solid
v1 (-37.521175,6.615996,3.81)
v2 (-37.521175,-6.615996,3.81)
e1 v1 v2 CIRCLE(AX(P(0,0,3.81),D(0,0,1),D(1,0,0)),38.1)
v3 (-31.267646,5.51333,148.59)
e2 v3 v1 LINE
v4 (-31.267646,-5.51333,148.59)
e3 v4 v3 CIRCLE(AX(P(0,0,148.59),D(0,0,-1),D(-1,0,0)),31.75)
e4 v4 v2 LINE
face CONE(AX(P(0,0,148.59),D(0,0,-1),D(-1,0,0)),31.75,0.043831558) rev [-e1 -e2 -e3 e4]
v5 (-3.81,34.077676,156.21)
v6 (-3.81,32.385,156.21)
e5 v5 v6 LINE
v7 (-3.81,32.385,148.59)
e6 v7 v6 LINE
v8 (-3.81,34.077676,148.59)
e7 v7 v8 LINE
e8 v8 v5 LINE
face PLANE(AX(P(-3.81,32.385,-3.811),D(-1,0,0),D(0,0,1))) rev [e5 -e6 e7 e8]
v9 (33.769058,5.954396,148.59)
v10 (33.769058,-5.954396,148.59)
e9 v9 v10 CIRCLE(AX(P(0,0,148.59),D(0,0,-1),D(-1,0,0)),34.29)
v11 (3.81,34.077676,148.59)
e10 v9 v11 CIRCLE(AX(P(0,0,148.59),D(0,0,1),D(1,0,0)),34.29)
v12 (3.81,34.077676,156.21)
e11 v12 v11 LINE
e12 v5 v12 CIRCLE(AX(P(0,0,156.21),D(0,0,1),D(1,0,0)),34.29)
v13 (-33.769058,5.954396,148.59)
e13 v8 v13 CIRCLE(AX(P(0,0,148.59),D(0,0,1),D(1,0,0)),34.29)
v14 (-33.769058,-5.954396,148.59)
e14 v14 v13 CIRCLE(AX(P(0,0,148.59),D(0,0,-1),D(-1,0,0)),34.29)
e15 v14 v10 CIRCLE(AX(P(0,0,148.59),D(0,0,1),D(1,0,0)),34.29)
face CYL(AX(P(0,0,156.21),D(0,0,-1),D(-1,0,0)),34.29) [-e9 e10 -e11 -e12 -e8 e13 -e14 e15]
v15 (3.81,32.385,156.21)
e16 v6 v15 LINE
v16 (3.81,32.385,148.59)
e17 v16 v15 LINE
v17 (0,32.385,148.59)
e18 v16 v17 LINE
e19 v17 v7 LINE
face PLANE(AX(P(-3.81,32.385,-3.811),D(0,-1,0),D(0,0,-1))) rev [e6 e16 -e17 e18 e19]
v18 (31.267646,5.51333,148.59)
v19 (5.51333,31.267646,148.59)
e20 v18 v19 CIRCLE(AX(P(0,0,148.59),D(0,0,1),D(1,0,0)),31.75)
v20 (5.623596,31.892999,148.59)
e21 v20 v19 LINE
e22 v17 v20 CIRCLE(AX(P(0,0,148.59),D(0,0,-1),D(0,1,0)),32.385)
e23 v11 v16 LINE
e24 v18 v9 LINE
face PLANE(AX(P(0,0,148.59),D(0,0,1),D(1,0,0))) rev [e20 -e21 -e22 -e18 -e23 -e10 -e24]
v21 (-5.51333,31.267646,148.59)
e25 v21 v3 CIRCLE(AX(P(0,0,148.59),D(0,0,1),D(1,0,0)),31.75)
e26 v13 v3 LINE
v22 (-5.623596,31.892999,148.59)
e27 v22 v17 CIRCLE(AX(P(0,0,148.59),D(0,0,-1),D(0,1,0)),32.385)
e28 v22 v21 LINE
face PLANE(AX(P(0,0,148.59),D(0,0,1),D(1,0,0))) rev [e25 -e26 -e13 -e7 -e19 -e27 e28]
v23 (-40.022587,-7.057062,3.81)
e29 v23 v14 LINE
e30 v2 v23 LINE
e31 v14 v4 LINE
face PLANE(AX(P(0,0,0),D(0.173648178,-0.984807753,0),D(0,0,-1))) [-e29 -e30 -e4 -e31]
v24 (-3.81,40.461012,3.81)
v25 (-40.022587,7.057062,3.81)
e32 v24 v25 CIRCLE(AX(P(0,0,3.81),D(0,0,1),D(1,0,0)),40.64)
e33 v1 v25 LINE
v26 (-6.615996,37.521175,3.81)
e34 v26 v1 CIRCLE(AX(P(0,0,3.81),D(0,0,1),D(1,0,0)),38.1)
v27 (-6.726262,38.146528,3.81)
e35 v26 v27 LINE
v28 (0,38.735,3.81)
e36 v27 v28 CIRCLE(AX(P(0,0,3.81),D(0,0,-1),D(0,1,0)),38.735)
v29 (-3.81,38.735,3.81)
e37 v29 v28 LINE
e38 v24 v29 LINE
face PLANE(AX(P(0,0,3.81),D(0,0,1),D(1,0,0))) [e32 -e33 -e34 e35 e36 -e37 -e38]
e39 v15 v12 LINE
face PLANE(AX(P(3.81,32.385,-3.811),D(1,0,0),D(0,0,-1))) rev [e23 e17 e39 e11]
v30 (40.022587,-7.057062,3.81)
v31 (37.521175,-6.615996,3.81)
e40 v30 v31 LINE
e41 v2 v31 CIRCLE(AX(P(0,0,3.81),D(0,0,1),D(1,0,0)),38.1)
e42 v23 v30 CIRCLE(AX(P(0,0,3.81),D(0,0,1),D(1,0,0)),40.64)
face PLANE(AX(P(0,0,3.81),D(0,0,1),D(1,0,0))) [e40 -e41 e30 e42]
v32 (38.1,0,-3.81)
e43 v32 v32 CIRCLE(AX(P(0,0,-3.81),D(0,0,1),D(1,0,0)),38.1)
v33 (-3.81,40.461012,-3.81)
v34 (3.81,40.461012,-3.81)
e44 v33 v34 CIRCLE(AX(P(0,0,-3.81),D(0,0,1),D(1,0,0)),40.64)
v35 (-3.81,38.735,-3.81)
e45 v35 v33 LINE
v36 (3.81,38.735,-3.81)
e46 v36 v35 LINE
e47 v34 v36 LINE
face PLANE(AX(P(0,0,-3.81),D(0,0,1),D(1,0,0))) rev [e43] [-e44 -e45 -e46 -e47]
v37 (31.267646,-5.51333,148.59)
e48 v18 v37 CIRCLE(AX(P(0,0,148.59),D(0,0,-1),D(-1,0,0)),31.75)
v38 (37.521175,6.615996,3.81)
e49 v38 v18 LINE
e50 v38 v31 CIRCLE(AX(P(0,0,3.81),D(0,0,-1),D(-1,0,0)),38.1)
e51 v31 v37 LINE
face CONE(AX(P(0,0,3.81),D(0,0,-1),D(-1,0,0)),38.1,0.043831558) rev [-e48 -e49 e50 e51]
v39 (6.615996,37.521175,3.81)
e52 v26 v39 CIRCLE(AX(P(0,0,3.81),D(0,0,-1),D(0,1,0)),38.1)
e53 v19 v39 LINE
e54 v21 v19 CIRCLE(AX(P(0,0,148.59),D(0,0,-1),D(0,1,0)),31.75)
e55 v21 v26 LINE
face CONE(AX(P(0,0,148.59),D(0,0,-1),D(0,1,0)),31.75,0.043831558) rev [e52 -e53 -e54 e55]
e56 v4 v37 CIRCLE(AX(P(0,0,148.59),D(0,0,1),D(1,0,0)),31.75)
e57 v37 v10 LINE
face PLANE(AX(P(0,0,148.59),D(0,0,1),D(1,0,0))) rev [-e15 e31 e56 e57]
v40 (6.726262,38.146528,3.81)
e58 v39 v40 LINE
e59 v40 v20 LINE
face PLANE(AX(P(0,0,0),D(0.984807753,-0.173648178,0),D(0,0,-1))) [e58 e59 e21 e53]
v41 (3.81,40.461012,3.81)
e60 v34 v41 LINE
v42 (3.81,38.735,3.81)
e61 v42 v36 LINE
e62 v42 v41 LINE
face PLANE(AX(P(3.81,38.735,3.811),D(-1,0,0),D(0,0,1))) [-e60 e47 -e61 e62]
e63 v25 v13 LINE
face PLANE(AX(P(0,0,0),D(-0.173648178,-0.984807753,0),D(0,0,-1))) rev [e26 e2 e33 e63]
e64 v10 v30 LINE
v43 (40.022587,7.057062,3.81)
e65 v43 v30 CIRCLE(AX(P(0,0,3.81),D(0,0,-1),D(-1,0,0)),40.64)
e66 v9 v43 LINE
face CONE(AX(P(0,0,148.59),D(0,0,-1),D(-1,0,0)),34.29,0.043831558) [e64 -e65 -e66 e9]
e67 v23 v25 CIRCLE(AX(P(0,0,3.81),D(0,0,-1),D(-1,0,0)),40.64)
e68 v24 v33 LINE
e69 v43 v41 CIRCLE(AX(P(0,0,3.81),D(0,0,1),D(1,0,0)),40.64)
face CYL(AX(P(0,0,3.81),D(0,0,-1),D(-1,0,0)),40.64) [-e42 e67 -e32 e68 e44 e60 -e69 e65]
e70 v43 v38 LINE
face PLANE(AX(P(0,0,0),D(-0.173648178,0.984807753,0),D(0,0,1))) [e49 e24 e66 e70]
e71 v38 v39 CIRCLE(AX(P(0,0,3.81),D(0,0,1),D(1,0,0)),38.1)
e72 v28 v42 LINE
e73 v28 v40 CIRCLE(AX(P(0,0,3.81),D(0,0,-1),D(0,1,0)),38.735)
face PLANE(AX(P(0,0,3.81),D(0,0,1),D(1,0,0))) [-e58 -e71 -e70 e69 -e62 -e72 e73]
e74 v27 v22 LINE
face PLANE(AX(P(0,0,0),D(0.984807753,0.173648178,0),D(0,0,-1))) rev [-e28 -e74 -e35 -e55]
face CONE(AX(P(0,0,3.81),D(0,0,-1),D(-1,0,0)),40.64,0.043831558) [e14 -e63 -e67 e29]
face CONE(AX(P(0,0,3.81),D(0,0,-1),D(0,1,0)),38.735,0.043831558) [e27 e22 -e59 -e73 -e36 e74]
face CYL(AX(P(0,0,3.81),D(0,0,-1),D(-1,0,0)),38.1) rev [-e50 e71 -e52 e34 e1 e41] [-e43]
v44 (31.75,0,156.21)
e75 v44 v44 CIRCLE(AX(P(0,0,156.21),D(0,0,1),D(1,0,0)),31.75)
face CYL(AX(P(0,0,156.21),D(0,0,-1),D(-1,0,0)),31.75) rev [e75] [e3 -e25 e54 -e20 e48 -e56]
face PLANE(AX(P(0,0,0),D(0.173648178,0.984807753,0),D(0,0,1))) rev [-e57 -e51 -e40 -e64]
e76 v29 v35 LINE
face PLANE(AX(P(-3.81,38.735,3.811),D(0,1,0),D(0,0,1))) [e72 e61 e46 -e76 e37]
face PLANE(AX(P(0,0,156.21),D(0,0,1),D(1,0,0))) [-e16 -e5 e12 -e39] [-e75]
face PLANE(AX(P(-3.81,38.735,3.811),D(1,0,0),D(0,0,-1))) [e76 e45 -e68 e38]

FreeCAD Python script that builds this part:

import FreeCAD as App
import Part
import Sketcher
from FreeCAD import Vector
Q = App.Units.Quantity


def add_polygon(sketch, points):
    """Adds a closed chain of lines whose ends are joined by coincident constraints."""
    first, n = sketch.GeometryCount, len(points)
    for a, b in zip(points, points[1:] + points[:1]):
        sketch.addGeometry(Part.LineSegment(App.Vector(*a, 0), App.Vector(*b, 0)), False)
    for i in range(n):
        sketch.addConstraint(Sketcher.Constraint("Coincident", first + i, 2, first + (i + 1) % n, 1))

doc = App.newDocument("Part")
body = doc.addObject("PartDesign::Body", "Body")

sketch1 = doc.addObject("Sketcher::SketchObject", "Sketch")
body.addObject(sketch1)
sketch1.AttachmentSupport = (doc.XY_Plane, [""])
sketch1.MapMode = "FlatFace"
sketch1.addGeometry(Part.Circle(Vector(0, 0, 0), Vector(0, 0, 1), 41), False)
sketch1.addGeometry(Part.Circle(Vector(0, 0, 0), Vector(0, 0, 1), 38), False)
sketch1.addConstraint(Sketcher.Constraint("Coincident", 0, 3, -1, 1))
sketch1.addConstraint(Sketcher.Constraint("Coincident", 1, 3, -1, 1))
sketch1.addConstraint(Sketcher.Constraint("Diameter", 1, Q("3 in")))
sketch1.addConstraint(Sketcher.Constraint("Diameter", 0, Q("3.2 in")))
pad1 = doc.addObject("PartDesign::Pad", "Pad")
body.addObject(pad1)
pad1.Profile = sketch1
pad1.Length = Q("0.3 in")
pad1.Midplane = True

sketch2 = doc.addObject("Sketcher::SketchObject", "Sketch001")
body.addObject(sketch2)
sketch2.AttachmentSupport = (doc.XY_Plane, [""])
sketch2.MapMode = "FlatFace"
add_polygon(sketch2, [(-3.8, 42.5), (-3.8, 38.7), (3.8, 38.7), (3.8, 42.5)])
sketch2.addConstraint(Sketcher.Constraint("Vertical", 0))
sketch2.addConstraint(Sketcher.Constraint("Horizontal", 1))
sketch2.addConstraint(Sketcher.Constraint("Vertical", 2))
sketch2.addConstraint(Sketcher.Constraint("Horizontal", 3))
sketch2.addConstraint(Sketcher.Constraint("DistanceX", 1, 1, 1, 2, Q("0.3 in")))
sketch2.addConstraint(Sketcher.Constraint("DistanceY", 0, 2, 0, 1, Q("0.15 in")))
sketch2.addConstraint(Sketcher.Constraint("DistanceX", 0, 2, -1, 1, Q("0.15 in")))
sketch2.addConstraint(Sketcher.Constraint("DistanceY", -1, 1, 0, 2, Q("1.525 in")))
pocket1 = doc.addObject("PartDesign::Pocket", "Pocket")
body.addObject(pocket1)
pocket1.Profile = sketch2
pocket1.Type = "UpToFirst"

sketch3 = doc.addObject("Sketcher::SketchObject", "Sketch002")
body.addObject(sketch3)
sketch3.AttachmentSupport = (doc.XY_Plane, [""])
sketch3.MapMode = "FlatFace"
add_polygon(sketch3, [(-3.8, 42.5), (-3.8, 38.7), (3.8, 38.7), (3.8, 42.5)])
sketch3.addConstraint(Sketcher.Constraint("Vertical", 0))
sketch3.addConstraint(Sketcher.Constraint("Horizontal", 1))
sketch3.addConstraint(Sketcher.Constraint("Vertical", 2))
sketch3.addConstraint(Sketcher.Constraint("Horizontal", 3))
sketch3.addConstraint(Sketcher.Constraint("DistanceX", 1, 1, 1, 2, Q("0.3 in")))
sketch3.addConstraint(Sketcher.Constraint("DistanceY", 0, 2, 0, 1, Q("0.15 in")))
sketch3.addConstraint(Sketcher.Constraint("DistanceX", 0, 2, -1, 1, Q("0.15 in")))
sketch3.addConstraint(Sketcher.Constraint("DistanceY", -1, 1, 0, 2, Q("1.525 in")))
pocket2 = doc.addObject("PartDesign::Pocket", "Pocket001")
body.addObject(pocket2)
pocket2.Profile = sketch3
pocket2.Type = "UpToFirst"
pocket2.Reversed = True
body2 = doc.addObject("PartDesign::Body", "Body001")

sketch4 = doc.addObject("Sketcher::SketchObject", "Sketch003")
body2.addObject(sketch4)
sketch4.AttachmentSupport = (doc.getObject("XY_Plane001"), [""])
sketch4.MapMode = "FlatFace"
sketch4.AttachmentOffset = App.Placement(Vector(0, 0, 6 * 25.4), App.Rotation())
sketch4.addGeometry(Part.Circle(Vector(0, 0, 0), Vector(0, 0, 1), 34), False)
sketch4.addGeometry(Part.Circle(Vector(0, 0, 0), Vector(0, 0, 1), 32), False)
sketch4.addConstraint(Sketcher.Constraint("Coincident", 0, 3, -1, 1))
sketch4.addConstraint(Sketcher.Constraint("Coincident", 1, 3, -1, 1))
sketch4.addConstraint(Sketcher.Constraint("Diameter", 0, Q("2.7 in")))
sketch4.addConstraint(Sketcher.Constraint("Diameter", 1, Q("2.5 in")))
pad2 = doc.addObject("PartDesign::Pad", "Pad001")
body2.addObject(pad2)
pad2.Profile = sketch4
pad2.Length = Q("0.3 in")
pad2.Midplane = True
body.AllowCompound = True
doc.recompute()

boolean = doc.addObject("PartDesign::Boolean", "Boolean")
body.addObject(boolean)
boolean.Type = "Fuse"
boolean.addObjects([body2])

sketch5 = doc.addObject("Sketcher::SketchObject", "Sketch004")
body.addObject(sketch5)
sketch5.AttachmentSupport = (doc.XZ_Plane, [""])
sketch5.MapMode = "FlatFace"
add_polygon(sketch5, [(-40.6, 3.8), (-34.3, 148.6), (-31.8, 148.6), (-38.1, 3.8)])
add_polygon(sketch5, [(34.3, 148.6), (40.6, 3.8), (38.1, 3.8), (31.8, 148.6)])
sketch5.addConstraint(Sketcher.Constraint("Horizontal", 1))
sketch5.addConstraint(Sketcher.Constraint("Horizontal", 3))
sketch5.addConstraint(Sketcher.Constraint("Horizontal", 5))
sketch5.addConstraint(Sketcher.Constraint("Horizontal", 7))
sketch5.addConstraint(Sketcher.Constraint("Symmetric", 3, 2, 4, 2, -2))
sketch5.addConstraint(Sketcher.Constraint("Symmetric", 1, 2, 6, 2, -2))
sketch5.addConstraint(Sketcher.Constraint("Parallel", 0, 2))
sketch5.addConstraint(Sketcher.Constraint("Parallel", 4, 6))
sketch5.addConstraint(Sketcher.Constraint("Equal", 3, 5))
sketch5.addConstraint(Sketcher.Constraint("DistanceX", 1, 1, 1, 2, Q("0.1 in")))
sketch5.addConstraint(Sketcher.Constraint("DistanceX", 2, 2, 5, 2, Q("3 in")))
sketch5.addConstraint(Sketcher.Constraint("DistanceY", 2, 2, 0, 2, Q("5.7 in")))
sketch5.addConstraint(Sketcher.Constraint("DistanceX", 1, 2, 6, 2, Q("2.5 in")))
sketch5.addConstraint(Sketcher.Constraint("DistanceY", -1, 1, 0, 2, Q("5.85 in")))
revolution = doc.addObject("PartDesign::Revolution", "Revolution")
body.addObject(revolution)
revolution.Profile = sketch5
revolution.ReferenceAxis = (sketch5, ["V_Axis"])
revolution.Angle = 10

sketch6 = doc.addObject("Sketcher::SketchObject", "Sketch005")
body.addObject(sketch6)
sketch6.AttachmentSupport = (doc.XZ_Plane, [""])
sketch6.MapMode = "FlatFace"
add_polygon(sketch6, [(-40.6, 3.8), (-34.3, 148.6), (-31.8, 148.6), (-38.1, 3.8)])
add_polygon(sketch6, [(34.3, 148.6), (40.6, 3.8), (38.1, 3.8), (31.8, 148.6)])
sketch6.addConstraint(Sketcher.Constraint("Horizontal", 1))
sketch6.addConstraint(Sketcher.Constraint("Horizontal", 3))
sketch6.addConstraint(Sketcher.Constraint("Horizontal", 5))
sketch6.addConstraint(Sketcher.Constraint("Horizontal", 7))
sketch6.addConstraint(Sketcher.Constraint("Symmetric", 3, 2, 4, 2, -2))
sketch6.addConstraint(Sketcher.Constraint("Symmetric", 1, 2, 6, 2, -2))
sketch6.addConstraint(Sketcher.Constraint("Parallel", 0, 2))
sketch6.addConstraint(Sketcher.Constraint("Parallel", 4, 6))
sketch6.addConstraint(Sketcher.Constraint("Equal", 3, 5))
sketch6.addConstraint(Sketcher.Constraint("DistanceX", 1, 1, 1, 2, Q("0.1 in")))
sketch6.addConstraint(Sketcher.Constraint("DistanceX", 2, 2, 5, 2, Q("3 in")))
sketch6.addConstraint(Sketcher.Constraint("DistanceY", 2, 2, 0, 2, Q("5.7 in")))
sketch6.addConstraint(Sketcher.Constraint("DistanceX", 1, 2, 6, 2, Q("2.5 in")))
sketch6.addConstraint(Sketcher.Constraint("DistanceY", -1, 1, 0, 2, Q("5.85 in")))
revolution2 = doc.addObject("PartDesign::Revolution", "Revolution001")
body.addObject(revolution2)
revolution2.Profile = sketch6
revolution2.ReferenceAxis = (sketch6, ["V_Axis"])
revolution2.Angle = 10
revolution2.Reversed = True

sketch7 = doc.addObject("Sketcher::SketchObject", "Sketch006")
body.addObject(sketch7)
sketch7.AttachmentSupport = (doc.XY_Plane, [""])
sketch7.MapMode = "FlatFace"
sketch7.AttachmentOffset = App.Placement(Vector(0, 0, 6.15 * 25.4), App.Rotation())
add_polygon(sketch7, [(-3.8, 36.2), (-3.8, 32.4), (3.8, 32.4), (3.8, 36.2)])
sketch7.addConstraint(Sketcher.Constraint("Vertical", 0))
sketch7.addConstraint(Sketcher.Constraint("Horizontal", 1))
sketch7.addConstraint(Sketcher.Constraint("Vertical", 2))
sketch7.addConstraint(Sketcher.Constraint("Horizontal", 3))
sketch7.addConstraint(Sketcher.Constraint("DistanceX", 1, 1, 1, 2, Q("0.3 in")))
sketch7.addConstraint(Sketcher.Constraint("DistanceY", 0, 2, 0, 1, Q("0.15 in")))
sketch7.addConstraint(Sketcher.Constraint("DistanceX", 0, 2, -1, 1, Q("0.15 in")))
sketch7.addConstraint(Sketcher.Constraint("DistanceY", -1, 1, 0, 2, Q("1.275 in")))
pocket3 = doc.addObject("PartDesign::Pocket", "Pocket002")
body.addObject(pocket3)
pocket3.Profile = sketch7
pocket3.Type = "UpToFirst"

sketch8 = doc.addObject("Sketcher::SketchObject", "Sketch007")
body.addObject(sketch8)
sketch8.AttachmentSupport = (doc.YZ_Plane, [""])
sketch8.MapMode = "FlatFace"
add_polygon(sketch8, [(38.7, 3.8), (32.4, 148.6), (31.8, 148.6), (38.1, 3.8)])
sketch8.addConstraint(Sketcher.Constraint("Horizontal", 1))
sketch8.addConstraint(Sketcher.Constraint("Horizontal", 3))
sketch8.addConstraint(Sketcher.Constraint("Parallel", 0, 2))
sketch8.addConstraint(Sketcher.Constraint("DistanceX", -1, 1, 2, 2, Q("1.5 in")))
sketch8.addConstraint(Sketcher.Constraint("DistanceY", 2, 2, 0, 2, Q("5.7 in")))
sketch8.addConstraint(Sketcher.Constraint("DistanceX", 1, 2, 1, 1, Q("0.025 in")))
sketch8.addConstraint(Sketcher.Constraint("DistanceY", -1, 1, 0, 2, Q("5.85 in")))
sketch8.addConstraint(Sketcher.Constraint("DistanceX", -1, 1, 1, 2, Q("1.25 in")))
revolution3 = doc.addObject("PartDesign::Revolution", "Revolution002")
body.addObject(revolution3)
revolution3.Profile = sketch8
revolution3.ReferenceAxis = (sketch8, ["V_Axis"])
revolution3.Angle = 10

sketch9 = doc.addObject("Sketcher::SketchObject", "Sketch008")
body.addObject(sketch9)
sketch9.AttachmentSupport = (doc.YZ_Plane, [""])
sketch9.MapMode = "FlatFace"
add_polygon(sketch9, [(38.7, 3.8), (32.4, 148.6), (31.8, 148.6), (38.1, 3.8)])
sketch9.addConstraint(Sketcher.Constraint("Horizontal", 1))
sketch9.addConstraint(Sketcher.Constraint("Horizontal", 3))
sketch9.addConstraint(Sketcher.Constraint("Parallel", 0, 2))
sketch9.addConstraint(Sketcher.Constraint("DistanceX", -1, 1, 2, 2, Q("1.5 in")))
sketch9.addConstraint(Sketcher.Constraint("DistanceY", 2, 2, 0, 2, Q("5.7 in")))
sketch9.addConstraint(Sketcher.Constraint("DistanceX", 1, 2, 1, 1, Q("0.025 in")))
sketch9.addConstraint(Sketcher.Constraint("DistanceY", -1, 1, 0, 2, Q("5.85 in")))
sketch9.addConstraint(Sketcher.Constraint("DistanceX", -1, 1, 1, 2, Q("1.25 in")))
revolution4 = doc.addObject("PartDesign::Revolution", "Revolution003")
body.addObject(revolution4)
revolution4.Profile = sketch9
revolution4.ReferenceAxis = (sketch9, ["V_Axis"])
revolution4.Angle = 10
revolution4.Reversed = True

doc.recompute()
